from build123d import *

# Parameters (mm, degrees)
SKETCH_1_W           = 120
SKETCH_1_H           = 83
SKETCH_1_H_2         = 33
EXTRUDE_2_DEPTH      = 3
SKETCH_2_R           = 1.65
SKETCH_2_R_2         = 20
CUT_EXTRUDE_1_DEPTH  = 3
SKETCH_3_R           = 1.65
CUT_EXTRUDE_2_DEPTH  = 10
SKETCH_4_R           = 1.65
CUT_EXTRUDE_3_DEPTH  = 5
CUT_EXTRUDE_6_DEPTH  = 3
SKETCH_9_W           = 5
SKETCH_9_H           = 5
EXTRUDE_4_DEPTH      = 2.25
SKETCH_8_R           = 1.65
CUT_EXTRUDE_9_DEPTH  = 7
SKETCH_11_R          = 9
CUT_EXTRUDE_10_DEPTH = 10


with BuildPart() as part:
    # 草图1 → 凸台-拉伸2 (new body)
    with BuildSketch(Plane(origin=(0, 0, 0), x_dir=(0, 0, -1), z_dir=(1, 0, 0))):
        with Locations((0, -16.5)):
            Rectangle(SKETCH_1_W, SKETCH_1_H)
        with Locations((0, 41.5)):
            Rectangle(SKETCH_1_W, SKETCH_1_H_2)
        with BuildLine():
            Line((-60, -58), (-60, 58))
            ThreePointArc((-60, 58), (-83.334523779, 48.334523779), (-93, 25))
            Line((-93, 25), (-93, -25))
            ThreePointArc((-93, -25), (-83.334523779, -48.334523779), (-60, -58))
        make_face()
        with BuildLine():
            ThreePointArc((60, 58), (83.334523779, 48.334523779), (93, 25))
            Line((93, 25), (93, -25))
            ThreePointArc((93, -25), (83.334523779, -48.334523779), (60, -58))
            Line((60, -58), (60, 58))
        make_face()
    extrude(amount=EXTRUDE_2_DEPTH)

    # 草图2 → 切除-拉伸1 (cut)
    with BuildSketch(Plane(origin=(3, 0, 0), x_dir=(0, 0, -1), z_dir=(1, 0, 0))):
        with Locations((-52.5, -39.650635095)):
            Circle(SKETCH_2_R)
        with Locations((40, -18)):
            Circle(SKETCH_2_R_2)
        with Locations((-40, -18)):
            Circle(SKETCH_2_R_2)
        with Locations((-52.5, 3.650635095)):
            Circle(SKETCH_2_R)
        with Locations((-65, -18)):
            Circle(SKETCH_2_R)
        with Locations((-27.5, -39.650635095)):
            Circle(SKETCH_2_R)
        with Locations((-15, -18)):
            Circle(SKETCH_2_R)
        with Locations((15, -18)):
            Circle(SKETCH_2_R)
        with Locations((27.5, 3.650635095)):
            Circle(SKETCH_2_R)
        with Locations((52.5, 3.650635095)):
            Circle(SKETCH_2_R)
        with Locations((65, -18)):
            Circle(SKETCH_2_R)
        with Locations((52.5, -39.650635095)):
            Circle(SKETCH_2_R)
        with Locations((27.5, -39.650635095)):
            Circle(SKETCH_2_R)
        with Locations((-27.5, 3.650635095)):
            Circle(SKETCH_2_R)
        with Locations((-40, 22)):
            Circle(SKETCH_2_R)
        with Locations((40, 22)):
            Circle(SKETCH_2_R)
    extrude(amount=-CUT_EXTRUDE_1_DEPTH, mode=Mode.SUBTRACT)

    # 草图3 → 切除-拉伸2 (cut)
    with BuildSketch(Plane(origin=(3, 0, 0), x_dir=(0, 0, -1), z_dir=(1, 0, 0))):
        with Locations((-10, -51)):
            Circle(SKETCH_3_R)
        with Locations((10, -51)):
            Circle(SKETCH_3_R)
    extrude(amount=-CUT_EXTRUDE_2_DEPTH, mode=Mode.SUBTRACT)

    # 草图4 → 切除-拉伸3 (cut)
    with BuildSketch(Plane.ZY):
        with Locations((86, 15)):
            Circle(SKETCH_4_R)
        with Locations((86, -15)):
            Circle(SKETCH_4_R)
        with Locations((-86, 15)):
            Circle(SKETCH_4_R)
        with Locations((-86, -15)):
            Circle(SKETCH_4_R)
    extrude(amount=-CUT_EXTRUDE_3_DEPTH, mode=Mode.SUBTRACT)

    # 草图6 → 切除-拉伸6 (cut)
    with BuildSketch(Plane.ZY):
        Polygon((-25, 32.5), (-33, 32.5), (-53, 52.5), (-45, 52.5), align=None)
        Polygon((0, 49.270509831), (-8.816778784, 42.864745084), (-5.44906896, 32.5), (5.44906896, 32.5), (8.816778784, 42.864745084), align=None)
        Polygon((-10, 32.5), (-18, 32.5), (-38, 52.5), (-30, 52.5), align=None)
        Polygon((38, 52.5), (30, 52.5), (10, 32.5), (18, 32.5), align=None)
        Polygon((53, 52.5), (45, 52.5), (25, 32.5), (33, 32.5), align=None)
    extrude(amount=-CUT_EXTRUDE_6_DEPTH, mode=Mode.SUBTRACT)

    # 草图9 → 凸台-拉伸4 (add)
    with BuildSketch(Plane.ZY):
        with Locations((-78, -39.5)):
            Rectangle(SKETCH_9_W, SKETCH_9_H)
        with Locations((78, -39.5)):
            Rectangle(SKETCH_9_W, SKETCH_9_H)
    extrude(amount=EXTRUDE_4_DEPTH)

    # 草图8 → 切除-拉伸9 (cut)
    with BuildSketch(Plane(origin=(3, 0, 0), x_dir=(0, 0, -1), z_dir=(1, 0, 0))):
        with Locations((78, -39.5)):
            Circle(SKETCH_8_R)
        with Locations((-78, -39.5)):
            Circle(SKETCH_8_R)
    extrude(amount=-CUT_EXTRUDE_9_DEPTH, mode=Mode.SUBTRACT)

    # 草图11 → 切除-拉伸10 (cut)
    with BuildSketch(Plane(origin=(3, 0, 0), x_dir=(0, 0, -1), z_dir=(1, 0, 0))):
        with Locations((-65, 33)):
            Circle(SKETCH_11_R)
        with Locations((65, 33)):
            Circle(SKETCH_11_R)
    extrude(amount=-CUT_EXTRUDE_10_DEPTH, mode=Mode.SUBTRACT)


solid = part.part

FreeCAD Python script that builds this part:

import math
import FreeCAD as App
import Part
import Sketcher
from FreeCAD import Vector
Q = App.Units.Quantity


def add_polygon(sketch, points):
    """Adds a closed chain of lines whose ends are joined by coincident constraints."""
    first, n = sketch.GeometryCount, len(points)
    for a, b in zip(points, points[1:] + points[:1]):
        sketch.addGeometry(Part.LineSegment(App.Vector(*a, 0), App.Vector(*b, 0)), False)
    for i in range(n):
        sketch.addConstraint(Sketcher.Constraint("Coincident", first + i, 2, first + (i + 1) % n, 1))

doc = App.newDocument("Part")
body = doc.addObject("PartDesign::Body", "Body")

# Sketch on YZ plane
sketch1 = doc.addObject("Sketcher::SketchObject", "Sketch")
body.addObject(sketch1)
sketch1.AttachmentSupport = (doc.YZ_Plane, [""])
sketch1.MapMode = "FlatFace"
sketch1.addGeometry(Part.LineSegment(Vector(-58, 60, 0), Vector(-58, -60, 0)), False)
sketch1.addGeometry(Part.ArcOfCircle(Part.Circle(Vector(-25, -60, 0), Vector(0, 0, 1), 33), math.radians(-180), math.radians(-90)), False)
sketch1.addGeometry(Part.LineSegment(Vector(-25, -93, 0), Vector(25, -93, 0)), False)
sketch1.addGeometry(Part.ArcOfCircle(Part.Circle(Vector(25, -60, 0), Vector(0, 0, 1), 33), math.radians(-90), math.radians(0)), False)
sketch1.addGeometry(Part.LineSegment(Vector(58, -60, 0), Vector(58, 60, 0)), False)
sketch1.addGeometry(Part.ArcOfCircle(Part.Circle(Vector(25, 60, 0), Vector(0, 0, 1), 33), math.radians(0), math.radians(90)), False)
sketch1.addGeometry(Part.LineSegment(Vector(25, 93, 0), Vector(-25, 93, 0)), False)
sketch1.addGeometry(Part.ArcOfCircle(Part.Circle(Vector(-25, 60, 0), Vector(0, 0, 1), 33), math.radians(90), math.radians(180)), False)
sketch1.addConstraint(Sketcher.Constraint("Tangent", 0, 2, 1, 1))
sketch1.addConstraint(Sketcher.Constraint("Tangent", 1, 2, 2, 1))
sketch1.addConstraint(Sketcher.Constraint("Tangent", 2, 2, 3, 1))
sketch1.addConstraint(Sketcher.Constraint("Tangent", 3, 2, 4, 1))
sketch1.addConstraint(Sketcher.Constraint("Tangent", 4, 2, 5, 1))
sketch1.addConstraint(Sketcher.Constraint("Tangent", 5, 2, 6, 1))
sketch1.addConstraint(Sketcher.Constraint("Tangent", 6, 2, 7, 1))
sketch1.addConstraint(Sketcher.Constraint("Tangent", 7, 2, 0, 1))
sketch1.addConstraint(Sketcher.Constraint("Vertical", 0))
sketch1.addConstraint(Sketcher.Constraint("Horizontal", 2))
sketch1.addConstraint(Sketcher.Constraint("Vertical", 4))
sketch1.addConstraint(Sketcher.Constraint("Horizontal", 6))
sketch1.addConstraint(Sketcher.Constraint("Equal", 1, 3))
sketch1.addConstraint(Sketcher.Constraint("Equal", 3, 5))
sketch1.addConstraint(Sketcher.Constraint("Equal", 5, 7))
sketch1.addConstraint(Sketcher.Constraint("Symmetric", 1, 3, 5, 3, -1, 1))
sketch1.addConstraint(Sketcher.Constraint("Radius", 1, 33.0))
sketch1.addConstraint(Sketcher.Constraint("DistanceX", 2, 1, 2, 2, 50.0))
sketch1.addConstraint(Sketcher.Constraint("DistanceY", 0, 2, 0, 1, 120.0))
pad1 = doc.addObject("PartDesign::Pad", "Pad")
body.addObject(pad1)
pad1.Profile = sketch1
pad1.Length = 3

# Sketch on YZ plane
sketch2 = doc.addObject("Sketcher::SketchObject", "Sketch001")
body.addObject(sketch2)
sketch2.AttachmentSupport = (doc.YZ_Plane, [""])
sketch2.MapMode = "FlatFace"
sketch2.AttachmentOffset = App.Placement(Vector(0, 0, 3), App.Rotation())
sketch2.addGeometry(Part.Circle(Vector(-39.650635, 52.5, 0), Vector(0, 0, 1), 1.65), False)
sketch2.addGeometry(Part.Circle(Vector(-18, -40, 0), Vector(0, 0, 1), 20), False)
sketch2.addGeometry(Part.Circle(Vector(-18, 40, 0), Vector(0, 0, 1), 20), False)
sketch2.addGeometry(Part.Circle(Vector(3.650635, 52.5, 0), Vector(0, 0, 1), 1.65), False)
sketch2.addGeometry(Part.Circle(Vector(-18, 65, 0), Vector(0, 0, 1), 1.65), False)
sketch2.addGeometry(Part.Circle(Vector(-39.650635, 27.5, 0), Vector(0, 0, 1), 1.65), False)
sketch2.addGeometry(Part.Circle(Vector(-18, 15, 0), Vector(0, 0, 1), 1.65), False)
sketch2.addGeometry(Part.Circle(Vector(-18, -15, 0), Vector(0, 0, 1), 1.65), False)
sketch2.addGeometry(Part.Circle(Vector(3.650635, -27.5, 0), Vector(0, 0, 1), 1.65), False)
sketch2.addGeometry(Part.Circle(Vector(3.650635, -52.5, 0), Vector(0, 0, 1), 1.65), False)
sketch2.addGeometry(Part.Circle(Vector(-18, -65, 0), Vector(0, 0, 1), 1.65), False)
sketch2.addGeometry(Part.Circle(Vector(-39.650635, -52.5, 0), Vector(0, 0, 1), 1.65), False)
sketch2.addGeometry(Part.Circle(Vector(-39.650635, -27.5, 0), Vector(0, 0, 1), 1.65), False)
sketch2.addGeometry(Part.Circle(Vector(3.650635, 27.5, 0), Vector(0, 0, 1), 1.65), False)
sketch2.addGeometry(Part.Circle(Vector(22, 40, 0), Vector(0, 0, 1), 1.65), False)
sketch2.addGeometry(Part.Circle(Vector(22, -40, 0), Vector(0, 0, 1), 1.65), False)
sketch2.addConstraint(Sketcher.Constraint("Equal", 1, 2))
sketch2.addConstraint(Sketcher.Constraint("Equal", 0, 3))
sketch2.addConstraint(Sketcher.Constraint("Equal", 3, 4))
sketch2.addConstraint(Sketcher.Constraint("Equal", 4, 5))
sketch2.addConstraint(Sketcher.Constraint("Equal", 5, 6))
sketch2.addConstraint(Sketcher.Constraint("Equal", 6, 7))
sketch2.addConstraint(Sketcher.Constraint("Equal", 7, 8))
sketch2.addConstraint(Sketcher.Constraint("Equal", 8, 9))
sketch2.addConstraint(Sketcher.Constraint("Equal", 9, 10))
sketch2.addConstraint(Sketcher.Constraint("Equal", 10, 11))
sketch2.addConstraint(Sketcher.Constraint("Equal", 11, 12))
sketch2.addConstraint(Sketcher.Constraint("Equal", 12, 13))
sketch2.addConstraint(Sketcher.Constraint("Equal", 13, 14))
sketch2.addConstraint(Sketcher.Constraint("Equal", 14, 15))
sketch2.addConstraint(Sketcher.Constraint("Symmetric", 1, 3, 2, 3, -1))
sketch2.addConstraint(Sketcher.Constraint("Symmetric", 6, 3, 7, 3, -1))
sketch2.addConstraint(Sketcher.Constraint("Symmetric", 3, 3, 9, 3, -1))
sketch2.addConstraint(Sketcher.Constraint("Symmetric", 4, 3, 10, 3, -1))
sketch2.addConstraint(Sketcher.Constraint("Symmetric", 0, 3, 11, 3, -1))
sketch2.addConstraint(Sketcher.Constraint("Symmetric", 5, 3, 12, 3, -1))
sketch2.addConstraint(Sketcher.Constraint("Symmetric", 8, 3, 13, 3, -1))
sketch2.addConstraint(Sketcher.Constraint("Symmetric", 14, 3, 15, 3, -1))
sketch2.addConstraint(Sketcher.Constraint("Horizontal", 0, 3, 3, 3))
sketch2.addConstraint(Sketcher.Constraint("Horizontal", 8, 3, 12, 3))
sketch2.addConstraint(Sketcher.Constraint("Horizontal", 2, 3, 14, 3))
sketch2.addConstraint(Sketcher.Constraint("Vertical", 2, 3, 4, 3))
sketch2.addConstraint(Sketcher.Constraint("Vertical", 0, 3, 5, 3))
sketch2.addConstraint(Sketcher.Constraint("Vertical", 4, 3, 6, 3))
sketch2.addConstraint(Sketcher.Constraint("Vertical", 3, 3, 8, 3))
sketch2.addConstraint(Sketcher.Constraint("Diameter", 1, 40.0))
sketch2.addConstraint(Sketcher.Constraint("Diameter", 0, 3.3))
sketch2.addConstraint(Sketcher.Constraint("DistanceX", 1, 3, -1, 1, 18.0))
sketch2.addConstraint(Sketcher.Constraint("DistanceY", 1, 3, -1, 1, 40.0))
sketch2.addConstraint(Sketcher.Constraint("DistanceY", -1, 1, 4, 3, 65.0))
sketch2.addConstraint(Sketcher.Constraint("DistanceY", -1, 1, 6, 3, 15.0))
sketch2.addConstraint(Sketcher.Constraint("DistanceX", -1, 1, 14, 3, 22.0))
sketch2.addConstraint(Sketcher.Constraint("DistanceY", 5, 3, 0, 3, 25.0))
sketch2.addConstraint(Sketcher.Constraint("DistanceY", 8, 3, 5, 3, 55.0))
sketch2.addConstraint(Sketcher.Constraint("DistanceX", 0, 3, 3, 3, 43.30127))
sketch2.addConstraint(Sketcher.Constraint("DistanceX", 0, 3, -1, 1, 39.650635))
pocket1 = doc.addObject("PartDesign::Pocket", "Pocket")
body.addObject(pocket1)
pocket1.Profile = sketch2
pocket1.Length = 3

# Sketch on YZ plane
sketch3 = doc.addObject("Sketcher::SketchObject", "Sketch002")
body.addObject(sketch3)
sketch3.AttachmentSupport = (doc.YZ_Plane, [""])
sketch3.MapMode = "FlatFace"
sketch3.AttachmentOffset = App.Placement(Vector(0, 0, 3), App.Rotation())
sketch3.addGeometry(Part.Circle(Vector(-51, 10, 0), Vector(0, 0, 1), 1.65), False)
sketch3.addGeometry(Part.Circle(Vector(-51, -10, 0), Vector(0, 0, 1), 1.65), False)
sketch3.addConstraint(Sketcher.Constraint("Equal", 0, 1))
sketch3.addConstraint(Sketcher.Constraint("Symmetric", 0, 3, 1, 3, -1))
sketch3.addConstraint(Sketcher.Constraint("Diameter", 0, 3.3))
sketch3.addConstraint(Sketcher.Constraint("DistanceX", 0, 3, -1, 1, 51.0))
sketch3.addConstraint(Sketcher.Constraint("DistanceY", -1, 1, 0, 3, 10.0))
pocket2 = doc.addObject("PartDesign::Pocket", "Pocket001")
body.addObject(pocket2)
pocket2.Profile = sketch3
pocket2.Length = 10

# Sketch on YZ plane
sketch4 = doc.addObject("Sketcher::SketchObject", "Sketch003")
body.addObject(sketch4)
sketch4.AttachmentSupport = (doc.YZ_Plane, [""])
sketch4.MapMode = "FlatFace"
sketch4.addGeometry(Part.Circle(Vector(15, 86, 0), Vector(0, 0, 1), 1.65), False)
sketch4.addGeometry(Part.Circle(Vector(-15, 86, 0), Vector(0, 0, 1), 1.65), False)
sketch4.addGeometry(Part.Circle(Vector(15, -86, 0), Vector(0, 0, 1), 1.65), False)
sketch4.addGeometry(Part.Circle(Vector(-15, -86, 0), Vector(0, 0, 1), 1.65), False)
sketch4.addConstraint(Sketcher.Constraint("Equal", 0, 1))
sketch4.addConstraint(Sketcher.Constraint("Equal", 1, 2))
sketch4.addConstraint(Sketcher.Constraint("Equal", 2, 3))
sketch4.addConstraint(Sketcher.Constraint("Symmetric", 1, 3, 2, 3, -1, 1))
sketch4.addConstraint(Sketcher.Constraint("Symmetric", 0, 3, 3, 3, -1, 1))
sketch4.addConstraint(Sketcher.Constraint("Symmetric", 0, 3, 1, 3, -2))
sketch4.addConstraint(Sketcher.Constraint("Diameter", 0, 3.3))
sketch4.addConstraint(Sketcher.Constraint("DistanceX", -1, 1, 0, 3, 15.0))
sketch4.addConstraint(Sketcher.Constraint("DistanceY", -1, 1, 0, 3, 86.0))
pocket3 = doc.addObject("PartDesign::Pocket", "Pocket002")
body.addObject(pocket3)
pocket3.Profile = sketch4
pocket3.Length = 5
pocket3.Reversed = True

# Sketch on YZ plane
sketch5 = doc.addObject("Sketcher::SketchObject", "Sketch004")
body.addObject(sketch5)
sketch5.AttachmentSupport = (doc.YZ_Plane, [""])
sketch5.MapMode = "FlatFace"
add_polygon(sketch5, [(32.5, -33), (32.5, -25), (52.5, -45), (52.5, -53)])  # lines 0-3
add_polygon(sketch5, [(49.27051, 0), (42.864745, -8.816779), (32.5, -5.449069), (32.5, 5.449069), (42.864745, 8.816779)])  # lines 4-8
add_polygon(sketch5, [(32.5, -18), (32.5, -10), (52.5, -30), (52.5, -38)])  # lines 9-12
add_polygon(sketch5, [(52.5, 38), (52.5, 30), (32.5, 10), (32.5, 18)])  # lines 13-16
add_polygon(sketch5, [(52.5, 53), (52.5, 45), (32.5, 25), (32.5, 33)])  # lines 17-20
sketch5.addConstraint(Sketcher.Constraint("Vertical", 0))
sketch5.addConstraint(Sketcher.Constraint("Vertical", 2))
sketch5.addConstraint(Sketcher.Constraint("Vertical", 6))
sketch5.addConstraint(Sketcher.Constraint("Vertical", 9))
sketch5.addConstraint(Sketcher.Constraint("Vertical", 11))
sketch5.addConstraint(Sketcher.Constraint("Vertical", 13))
sketch5.addConstraint(Sketcher.Constraint("Vertical", 15))
sketch5.addConstraint(Sketcher.Constraint("Vertical", 17))
sketch5.addConstraint(Sketcher.Constraint("Vertical", 19))
sketch5.addConstraint(Sketcher.Constraint("Symmetric", 4, 2, 7, 2, -1))
sketch5.addConstraint(Sketcher.Constraint("Symmetric", 10, 2, 13, 2, -1))
sketch5.addConstraint(Sketcher.Constraint("Symmetric", 9, 2, 14, 2, -1))
sketch5.addConstraint(Sketcher.Constraint("Symmetric", 1, 2, 17, 2, -1))
sketch5.addConstraint(Sketcher.Constraint("Symmetric", 0, 2, 18, 2, -1))
sketch5.addConstraint(Sketcher.Constraint("PointOnObject", 8, 2, -1))
sketch5.addConstraint(Sketcher.Constraint("Parallel", 1, 3))
sketch5.addConstraint(Sketcher.Constraint("Parallel", 3, 10))
sketch5.addConstraint(Sketcher.Constraint("Parallel", 10, 12))
sketch5.addConstraint(Sketcher.Constraint("Perpendicular", 12, 14))
sketch5.addConstraint(Sketcher.Constraint("Parallel", 14, 16))
sketch5.addConstraint(Sketcher.Constraint("Parallel", 18, 20))
sketch5.addConstraint(Sketcher.Constraint("Vertical", 3, 2, 5, 2))
sketch5.addConstraint(Sketcher.Constraint("Vertical", 6, 2, 9, 2))
sketch5.addConstraint(Sketcher.Constraint("Vertical", 2, 2, 10, 2))
sketch5.addConstraint(Sketcher.Constraint("Equal", 2, 9))
sketch5.addConstraint(Sketcher.Constraint("Equal", 11, 13))
sketch5.addConstraint(Sketcher.Constraint("Equal", 15, 17))
sketch5.addConstraint(Sketcher.Constraint("Equal", 4, 5))
sketch5.addConstraint(Sketcher.Constraint("Equal", 5, 7))
sketch5.addConstraint(Sketcher.Constraint("DistanceY", 0, 1, 0, 2, 8.0))
sketch5.addConstraint(Sketcher.Constraint("Angle", 4, Q("-126 deg")))
sketch5.addConstraint(Sketcher.Constraint("Angle", 5, Q("162 deg")))
sketch5.addConstraint(Sketcher.Constraint("DistanceY", 0, 2, -1, 1, 25.0))
sketch5.addConstraint(Sketcher.Constraint("DistanceY", 1, 2, -1, 1, 45.0))
sketch5.addConstraint(Sketcher.Constraint("DistanceY", 9, 2, -1, 1, 10.0))
sketch5.addConstraint(Sketcher.Constraint("DistanceX", -1, 1, 0, 2, 32.5))
sketch5.addConstraint(Sketcher.Constraint("DistanceY", 6, 1, 6, 2, 10.898138))
pocket4 = doc.addObject("PartDesign::Pocket", "Pocket003")
body.addObject(pocket4)
pocket4.Profile = sketch5
pocket4.Length = 3
pocket4.Reversed = True

# Sketch on YZ plane
sketch6 = doc.addObject("Sketcher::SketchObject", "Sketch005")
body.addObject(sketch6)
sketch6.AttachmentSupport = (doc.YZ_Plane, [""])
sketch6.MapMode = "FlatFace"
add_polygon(sketch6, [(-37, -80.5), (-42, -80.5), (-42, -75.5), (-37, -75.5)])  # lines 0-3
add_polygon(sketch6, [(-37, 75.5), (-42, 75.5), (-42, 80.5), (-37, 80.5)])  # lines 4-7
sketch6.addConstraint(Sketcher.Constraint("Horizontal", 0))
sketch6.addConstraint(Sketcher.Constraint("Vertical", 1))
sketch6.addConstraint(Sketcher.Constraint("Horizontal", 2))
sketch6.addConstraint(Sketcher.Constraint("Vertical", 3))
sketch6.addConstraint(Sketcher.Constraint("Horizontal", 4))
sketch6.addConstraint(Sketcher.Constraint("Vertical", 5))
sketch6.addConstraint(Sketcher.Constraint("Horizontal", 6))
sketch6.addConstraint(Sketcher.Constraint("Vertical", 7))
sketch6.addConstraint(Sketcher.Constraint("Symmetric", 1, 2, 4, 2, -1))
sketch6.addConstraint(Sketcher.Constraint("Symmetric", 3, 2, 6, 2, -1))
sketch6.addConstraint(Sketcher.Constraint("Equal", 6, 1))
sketch6.addConstraint(Sketcher.Constraint("DistanceX", 0, 2, 0, 1, 5.0))
sketch6.addConstraint(Sketcher.Constraint("DistanceX", 0, 2, -1, 1, 42.0))
sketch6.addConstraint(Sketcher.Constraint("DistanceY", 1, 2, 4, 2, 151.0))
pad2 = doc.addObject("PartDesign::Pad", "Pad001")
body.addObject(pad2)
pad2.Profile = sketch6
pad2.Length = 2.25
pad2.Reversed = True

# Sketch on YZ plane
sketch7 = doc.addObject("Sketcher::SketchObject", "Sketch006")
body.addObject(sketch7)
sketch7.AttachmentSupport = (doc.YZ_Plane, [""])
sketch7.MapMode = "FlatFace"
sketch7.AttachmentOffset = App.Placement(Vector(0, 0, 3), App.Rotation())
sketch7.addGeometry(Part.Circle(Vector(-39.5, -78, 0), Vector(0, 0, 1), 1.65), False)
sketch7.addGeometry(Part.Circle(Vector(-39.5, 78, 0), Vector(0, 0, 1), 1.65), False)
sketch7.addConstraint(Sketcher.Constraint("Equal", 0, 1))
sketch7.addConstraint(Sketcher.Constraint("Symmetric", 0, 3, 1, 3, -1))
sketch7.addConstraint(Sketcher.Constraint("Diameter", 0, 3.3))
sketch7.addConstraint(Sketcher.Constraint("DistanceY", 0, 3, -1, 1, 78.0))
sketch7.addConstraint(Sketcher.Constraint("DistanceX", 0, 3, -1, 1, 39.5))
pocket5 = doc.addObject("PartDesign::Pocket", "Pocket004")
body.addObject(pocket5)
pocket5.Profile = sketch7
pocket5.Length = 7

# Sketch on YZ plane
sketch8 = doc.addObject("Sketcher::SketchObject", "Sketch007")
body.addObject(sketch8)
sketch8.AttachmentSupport = (doc.YZ_Plane, [""])
sketch8.MapMode = "FlatFace"
sketch8.AttachmentOffset = App.Placement(Vector(0, 0, 3), App.Rotation())
sketch8.addGeometry(Part.Circle(Vector(33, 65, 0), Vector(0, 0, 1), 9), False)
sketch8.addGeometry(Part.Circle(Vector(33, -65, 0), Vector(0, 0, 1), 9), False)
sketch8.addConstraint(Sketcher.Constraint("Equal", 0, 1))
sketch8.addConstraint(Sketcher.Constraint("Symmetric", 0, 3, 1, 3, -1))
sketch8.addConstraint(Sketcher.Constraint("Diameter", 0, 18.0))
sketch8.addConstraint(Sketcher.Constraint("DistanceX", -1, 1, 0, 3, 33.0))
sketch8.addConstraint(Sketcher.Constraint("DistanceY", -1, 1, 0, 3, 65.0))
pocket6 = doc.addObject("PartDesign::Pocket", "Pocket005")
body.addObject(pocket6)
pocket6.Profile = sketch8
pocket6.Length = 10

doc.recompute()
